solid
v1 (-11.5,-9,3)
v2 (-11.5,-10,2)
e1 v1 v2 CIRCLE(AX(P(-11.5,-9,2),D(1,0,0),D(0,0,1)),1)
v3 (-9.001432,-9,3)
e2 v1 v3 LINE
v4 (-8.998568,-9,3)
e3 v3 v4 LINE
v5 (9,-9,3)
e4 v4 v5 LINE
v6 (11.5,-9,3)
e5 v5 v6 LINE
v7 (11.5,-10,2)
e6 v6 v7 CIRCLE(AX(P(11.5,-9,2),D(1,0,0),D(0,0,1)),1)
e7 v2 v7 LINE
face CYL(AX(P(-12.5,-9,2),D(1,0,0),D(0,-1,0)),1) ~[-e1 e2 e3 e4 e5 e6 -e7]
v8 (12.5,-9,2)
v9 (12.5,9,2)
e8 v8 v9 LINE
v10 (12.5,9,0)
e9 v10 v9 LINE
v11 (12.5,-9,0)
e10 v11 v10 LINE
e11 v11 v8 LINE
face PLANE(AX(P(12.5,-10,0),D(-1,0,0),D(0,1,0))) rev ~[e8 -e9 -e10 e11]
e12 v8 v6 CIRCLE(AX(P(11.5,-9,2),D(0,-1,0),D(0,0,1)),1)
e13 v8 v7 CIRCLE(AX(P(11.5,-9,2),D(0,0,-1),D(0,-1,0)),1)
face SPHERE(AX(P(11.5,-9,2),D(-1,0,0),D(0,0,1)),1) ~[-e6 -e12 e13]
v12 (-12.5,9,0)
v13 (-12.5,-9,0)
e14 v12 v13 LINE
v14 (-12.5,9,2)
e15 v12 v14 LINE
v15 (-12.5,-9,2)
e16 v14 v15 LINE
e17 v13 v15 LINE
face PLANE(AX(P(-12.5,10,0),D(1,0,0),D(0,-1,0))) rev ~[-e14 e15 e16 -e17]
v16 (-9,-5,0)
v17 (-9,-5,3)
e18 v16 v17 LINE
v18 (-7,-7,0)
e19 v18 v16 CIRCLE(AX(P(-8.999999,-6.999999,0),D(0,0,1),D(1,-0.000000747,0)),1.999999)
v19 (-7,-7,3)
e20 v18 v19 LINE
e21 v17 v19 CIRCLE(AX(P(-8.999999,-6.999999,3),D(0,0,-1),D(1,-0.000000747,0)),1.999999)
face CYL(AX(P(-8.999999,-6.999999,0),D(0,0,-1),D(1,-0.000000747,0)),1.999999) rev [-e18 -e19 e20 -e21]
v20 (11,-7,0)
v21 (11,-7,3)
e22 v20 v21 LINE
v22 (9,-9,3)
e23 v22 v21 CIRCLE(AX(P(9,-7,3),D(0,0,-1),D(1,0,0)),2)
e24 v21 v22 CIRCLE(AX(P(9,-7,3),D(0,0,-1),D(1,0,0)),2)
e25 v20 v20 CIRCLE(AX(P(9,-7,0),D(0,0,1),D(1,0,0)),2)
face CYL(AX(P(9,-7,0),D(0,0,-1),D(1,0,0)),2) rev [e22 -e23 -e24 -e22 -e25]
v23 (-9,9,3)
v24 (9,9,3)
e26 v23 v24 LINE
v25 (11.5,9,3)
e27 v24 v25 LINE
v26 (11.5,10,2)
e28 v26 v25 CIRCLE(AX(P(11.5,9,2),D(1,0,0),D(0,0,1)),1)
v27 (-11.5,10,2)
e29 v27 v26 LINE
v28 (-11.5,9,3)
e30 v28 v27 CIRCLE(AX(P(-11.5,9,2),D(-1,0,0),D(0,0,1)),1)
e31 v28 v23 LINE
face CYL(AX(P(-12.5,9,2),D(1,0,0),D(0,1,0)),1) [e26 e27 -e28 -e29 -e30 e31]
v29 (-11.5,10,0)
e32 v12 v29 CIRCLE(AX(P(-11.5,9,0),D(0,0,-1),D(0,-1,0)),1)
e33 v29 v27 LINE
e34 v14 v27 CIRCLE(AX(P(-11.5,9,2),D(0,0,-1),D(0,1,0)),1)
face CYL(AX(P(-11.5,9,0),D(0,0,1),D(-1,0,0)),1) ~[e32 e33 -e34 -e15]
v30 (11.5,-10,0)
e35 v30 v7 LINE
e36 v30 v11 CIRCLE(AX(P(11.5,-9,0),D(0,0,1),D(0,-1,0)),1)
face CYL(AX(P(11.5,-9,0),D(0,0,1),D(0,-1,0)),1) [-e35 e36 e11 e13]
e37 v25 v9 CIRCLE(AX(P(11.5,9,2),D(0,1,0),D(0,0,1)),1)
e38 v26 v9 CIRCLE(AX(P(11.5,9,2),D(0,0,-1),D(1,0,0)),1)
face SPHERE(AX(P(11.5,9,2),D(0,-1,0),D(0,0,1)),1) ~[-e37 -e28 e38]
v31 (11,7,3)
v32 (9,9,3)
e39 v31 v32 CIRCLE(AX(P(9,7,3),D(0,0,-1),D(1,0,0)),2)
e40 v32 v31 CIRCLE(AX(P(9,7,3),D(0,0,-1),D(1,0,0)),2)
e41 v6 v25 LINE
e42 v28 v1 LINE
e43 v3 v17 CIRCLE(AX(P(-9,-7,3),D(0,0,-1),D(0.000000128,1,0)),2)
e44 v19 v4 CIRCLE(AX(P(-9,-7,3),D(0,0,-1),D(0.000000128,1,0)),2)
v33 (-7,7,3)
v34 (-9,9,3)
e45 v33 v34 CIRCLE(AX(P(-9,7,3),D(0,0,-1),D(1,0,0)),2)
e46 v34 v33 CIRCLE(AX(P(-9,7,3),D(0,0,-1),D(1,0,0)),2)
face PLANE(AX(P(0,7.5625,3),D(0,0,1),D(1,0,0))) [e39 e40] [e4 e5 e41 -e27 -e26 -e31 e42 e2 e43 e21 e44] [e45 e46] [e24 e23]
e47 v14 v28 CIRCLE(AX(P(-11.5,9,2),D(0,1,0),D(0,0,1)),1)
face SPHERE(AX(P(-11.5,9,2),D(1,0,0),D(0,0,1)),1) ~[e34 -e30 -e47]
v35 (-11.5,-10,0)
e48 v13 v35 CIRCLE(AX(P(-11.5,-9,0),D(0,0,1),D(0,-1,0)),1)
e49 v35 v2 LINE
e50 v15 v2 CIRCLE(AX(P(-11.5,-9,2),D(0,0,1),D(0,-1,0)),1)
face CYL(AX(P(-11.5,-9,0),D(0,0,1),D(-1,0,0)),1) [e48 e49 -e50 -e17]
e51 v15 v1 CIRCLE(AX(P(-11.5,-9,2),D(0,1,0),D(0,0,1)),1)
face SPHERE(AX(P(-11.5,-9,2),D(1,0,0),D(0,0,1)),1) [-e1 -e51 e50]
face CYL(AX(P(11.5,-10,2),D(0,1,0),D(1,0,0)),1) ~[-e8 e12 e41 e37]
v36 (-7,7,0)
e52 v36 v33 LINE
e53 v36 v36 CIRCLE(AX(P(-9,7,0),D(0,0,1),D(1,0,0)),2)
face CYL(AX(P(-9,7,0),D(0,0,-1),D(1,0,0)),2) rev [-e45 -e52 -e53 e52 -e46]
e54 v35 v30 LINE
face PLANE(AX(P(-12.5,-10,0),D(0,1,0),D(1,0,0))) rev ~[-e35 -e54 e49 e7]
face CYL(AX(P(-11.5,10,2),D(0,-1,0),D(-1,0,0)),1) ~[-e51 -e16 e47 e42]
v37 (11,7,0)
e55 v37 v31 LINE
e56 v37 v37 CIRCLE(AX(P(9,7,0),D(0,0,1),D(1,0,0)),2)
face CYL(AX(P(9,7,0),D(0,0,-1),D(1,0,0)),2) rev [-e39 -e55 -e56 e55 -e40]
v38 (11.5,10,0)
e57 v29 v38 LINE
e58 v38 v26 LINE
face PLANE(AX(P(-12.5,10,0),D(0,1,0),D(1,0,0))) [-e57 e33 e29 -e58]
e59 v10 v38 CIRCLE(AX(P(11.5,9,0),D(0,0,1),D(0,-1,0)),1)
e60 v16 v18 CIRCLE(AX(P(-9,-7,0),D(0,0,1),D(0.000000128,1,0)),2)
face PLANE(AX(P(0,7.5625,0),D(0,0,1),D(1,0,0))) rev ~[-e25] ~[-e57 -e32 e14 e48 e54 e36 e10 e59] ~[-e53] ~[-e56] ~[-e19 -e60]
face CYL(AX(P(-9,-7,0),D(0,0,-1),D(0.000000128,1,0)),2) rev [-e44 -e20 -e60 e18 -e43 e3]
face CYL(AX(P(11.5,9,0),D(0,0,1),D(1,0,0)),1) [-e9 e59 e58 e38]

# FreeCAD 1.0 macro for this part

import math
import FreeCAD as App
import Part
import Sketcher


def edges_at(feature, points):
    """Names of the edges that pass closest to the given points."""
    edges = feature.Shape.Edges
    near = lambda p: min(range(len(edges)), key=lambda i: edges[i].distToShape(Part.Vertex(*p))[0])
    return sorted({f"Edge{near(p) + 1}" for p in points})


def add_polygon(sketch, points):
    """Adds a closed chain of lines whose ends are joined by coincident constraints."""
    first, n = sketch.GeometryCount, len(points)
    for a, b in zip(points, points[1:] + points[:1]):
        sketch.addGeometry(Part.LineSegment(App.Vector(*a, 0), App.Vector(*b, 0)), False)
    for i in range(n):
        sketch.addConstraint(Sketcher.Constraint("Coincident", first + i, 2, first + (i + 1) % n, 1))

doc = App.newDocument("Part")
params = doc.addObject("Spreadsheet::Sheet", "Params")
for row, (alias, value) in enumerate([
    ("sketch1_width", "25 mm"),
    ("sketch1_height", "20 mm"),
    ("pad1_length", "3 mm"),
    ("fillet_radius", "1 mm"),
    ("sketch2_diameter", "4 mm"),
    ("pocket1_length", "68 mm"),
], start=1):
    params.set(f"A{row}", alias)
    params.set(f"B{row}", "=" + value)
    params.setAlias(f"B{row}", alias)

body = doc.addObject("PartDesign::Body", "Body")

sketch1 = doc.addObject("Sketcher::SketchObject", "Sketch")
body.addObject(sketch1)
sketch1.AttachmentSupport = (doc.XY_Plane, [""])
sketch1.MapMode = "FlatFace"
add_polygon(sketch1, [(-12, 10), (-12, -10), (12, -10), (12, 10)])
sketch1.addConstraint([
    Sketcher.Constraint("Vertical", 0),
    Sketcher.Constraint("Horizontal", 1),
    Sketcher.Constraint("Vertical", 2),
    Sketcher.Constraint("Horizontal", 3),
    Sketcher.Constraint("Symmetric", 0, 2, 2, 2, -1, 1),
    Sketcher.Constraint("DistanceX", 1, 1, 1, 2, 25.0),
    Sketcher.Constraint("DistanceY", 0, 2, 0, 1, 20.0),
])
sketch1.setExpression("Constraints[9]", "Params.sketch1_width")
sketch1.setExpression("Constraints[10]", "Params.sketch1_height")
pad1 = doc.addObject("PartDesign::Pad", "Pad")
body.addObject(pad1)
pad1.Profile = sketch1
pad1.setExpression("Length", "Params.pad1_length")
doc.recompute()

fillet = doc.addObject("PartDesign::Fillet", "Fillet")
body.addObject(fillet)
fillet.Base = (pad1, edges_at(pad1, [
    (0, -10, 3),
    (12.5, 0, 3),
    (0, 10, 3),
    (-12.5, 0, 3),
    (12.5, -10, 1.5),
    (-12.5, -10, 1.5),
    (-12.5, 10, 1.5),
    (12.5, 10, 1.5),
]))
fillet.setExpression("Radius", "Params.fillet_radius")

sketch2 = doc.addObject("Sketcher::SketchObject", "Sketch001")
body.addObject(sketch2)
sketch2.AttachmentSupport = (doc.XY_Plane, [""])
sketch2.MapMode = "FlatFace"
sketch2.addGeometry([
    Part.ArcOfCircle(Part.Circle(App.Vector(-9, -7, 0), App.Vector(0, 0, 1), 2), math.radians(90), math.radians(360)),
    Part.ArcOfCircle(Part.Circle(App.Vector(-9, -7, 0), App.Vector(0, 0, 1), 2), math.radians(0), math.radians(90)),
    Part.Circle(App.Vector(9, -7, 0), App.Vector(0, 0, 1), 2),
    Part.Circle(App.Vector(9, 7, 0), App.Vector(0, 0, 1), 2),
    Part.Circle(App.Vector(-9, 7, 0), App.Vector(0, 0, 1), 2),
], False)
sketch2.addConstraint([
    Sketcher.Constraint("Tangent", 0, 1, 1, 2),
    Sketcher.Constraint("Coincident", 1, 1, 0, 2),
    Sketcher.Constraint("Equal", 1, 2),
    Sketcher.Constraint("Equal", 2, 3),
    Sketcher.Constraint("Equal", 3, 4),
    Sketcher.Constraint("Symmetric", 0, 3, 3, 3, -1, 1),
    Sketcher.Constraint("Symmetric", 2, 3, 4, 3, -1, 1),
    Sketcher.Constraint("Symmetric", 0, 3, 2, 3, -2),
    Sketcher.Constraint("Horizontal", 2, 3, 1, 1),
    Sketcher.Constraint("Vertical", 4, 3, 0, 1),
    Sketcher.Constraint("Diameter", 2, 4.0),
    Sketcher.Constraint("DistanceX", 0, 3, -1, 1, 9.0),
    Sketcher.Constraint("DistanceY", 0, 3, -1, 1, 7.0),
])
sketch2.setExpression("Constraints[10]", "Params.sketch2_diameter")
pocket1 = doc.addObject("PartDesign::Pocket", "Pocket")
body.addObject(pocket1)
pocket1.Profile = sketch2
pocket1.setExpression("Length", "Params.pocket1_length")
pocket1.Reversed = True

doc.recompute()
